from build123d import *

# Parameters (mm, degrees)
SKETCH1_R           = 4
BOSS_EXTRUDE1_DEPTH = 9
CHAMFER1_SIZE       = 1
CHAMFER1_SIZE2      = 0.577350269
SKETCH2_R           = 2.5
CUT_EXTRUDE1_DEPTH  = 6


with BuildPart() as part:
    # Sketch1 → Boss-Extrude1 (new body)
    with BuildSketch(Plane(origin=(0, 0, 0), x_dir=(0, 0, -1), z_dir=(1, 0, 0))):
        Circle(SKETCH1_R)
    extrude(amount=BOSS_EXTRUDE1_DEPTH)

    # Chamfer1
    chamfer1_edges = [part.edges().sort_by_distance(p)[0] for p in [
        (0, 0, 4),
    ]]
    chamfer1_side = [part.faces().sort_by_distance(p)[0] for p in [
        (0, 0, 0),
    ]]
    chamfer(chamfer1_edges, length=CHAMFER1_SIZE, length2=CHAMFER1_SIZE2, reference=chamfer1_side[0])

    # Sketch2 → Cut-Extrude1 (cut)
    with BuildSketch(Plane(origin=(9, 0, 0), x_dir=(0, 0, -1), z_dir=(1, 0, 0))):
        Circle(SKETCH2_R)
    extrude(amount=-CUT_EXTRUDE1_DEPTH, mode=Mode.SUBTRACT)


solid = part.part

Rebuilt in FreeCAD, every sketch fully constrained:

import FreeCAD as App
import Part
import Sketcher

V = App.Vector


def edges_at(feature, points):
    """Names of the edges that pass closest to the given points."""
    edges = feature.Shape.Edges
    near = lambda p: min(range(len(edges)), key=lambda i: edges[i].distToShape(Part.Vertex(*p))[0])
    return sorted({f"Edge{near(p) + 1}" for p in points})

doc = App.newDocument("Part")
body = doc.addObject("PartDesign::Body", "Body")

# Sketch on YZ plane
sketch1 = body.newObject("Sketcher::SketchObject", "Sketch")
sketch1.AttachmentSupport = (doc.getObject("YZ_Plane"), [""])
sketch1.MapMode = "FlatFace"
sketch1.addGeometry(Part.Circle(V(0, 0, 0), V(0, 0, 1), 4), False)
sketch1.addConstraint([
    Sketcher.Constraint("Coincident", 0, 3, -1, 1),
    Sketcher.Constraint("Diameter", 0, 8.0),
])
pad1 = body.newObject("PartDesign::Pad", "Pad")
pad1.Profile = sketch1
pad1.Length = 9
doc.recompute()

chamfer = body.newObject("PartDesign::Chamfer", "Chamfer")
chamfer.Base = (pad1, edges_at(pad1, [(0, 0, 4)]))
chamfer.ChamferType = "Two distances"
chamfer.Size = 1
chamfer.Size2 = 0.57735
chamfer.FlipDirection = True

# Sketch on YZ plane
sketch2 = body.newObject("Sketcher::SketchObject", "Sketch001")
sketch2.AttachmentSupport = (doc.getObject("YZ_Plane"), [""])
sketch2.MapMode = "FlatFace"
sketch2.AttachmentOffset = App.Placement(V(0, 0, 9), App.Rotation())
sketch2.addGeometry(Part.Circle(V(0, 0, 0), V(0, 0, 1), 2.5), False)
sketch2.addConstraint([
    Sketcher.Constraint("Coincident", 0, 3, -1, 1),
    Sketcher.Constraint("Diameter", 0, 5.0),
])
pocket1 = body.newObject("PartDesign::Pocket", "Pocket")
pocket1.Profile = sketch2
pocket1.Length = 6

doc.recompute()
